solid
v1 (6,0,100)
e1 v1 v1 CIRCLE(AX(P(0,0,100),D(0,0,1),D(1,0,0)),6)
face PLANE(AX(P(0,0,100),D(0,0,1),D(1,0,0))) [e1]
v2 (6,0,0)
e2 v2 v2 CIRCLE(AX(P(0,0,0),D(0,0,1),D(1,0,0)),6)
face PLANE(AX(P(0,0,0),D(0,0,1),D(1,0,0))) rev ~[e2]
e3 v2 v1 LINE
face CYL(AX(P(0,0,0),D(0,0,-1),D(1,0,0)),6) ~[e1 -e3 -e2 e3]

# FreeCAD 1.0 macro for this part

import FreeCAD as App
import Part
import Sketcher

V = App.Vector

doc = App.newDocument("Part")
body = doc.addObject("PartDesign::Body", "Body")

sketch1 = body.newObject("Sketcher::SketchObject", "Sketch")
sketch1.AttachmentSupport = (doc.getObject("XY_Plane"), [""])
sketch1.MapMode = "FlatFace"
sketch1.addGeometry(Part.Circle(V(0, 0, 0), V(0, 0, 1), 6), False)
sketch1.addConstraint([
    Sketcher.Constraint("Coincident", 0, 3, -1, 1),
    Sketcher.Constraint("Diameter", 0, 12.0),
])
pad1 = body.newObject("PartDesign::Pad", "Pad")
pad1.Profile = sketch1
pad1.Length = 100

doc.recompute()
